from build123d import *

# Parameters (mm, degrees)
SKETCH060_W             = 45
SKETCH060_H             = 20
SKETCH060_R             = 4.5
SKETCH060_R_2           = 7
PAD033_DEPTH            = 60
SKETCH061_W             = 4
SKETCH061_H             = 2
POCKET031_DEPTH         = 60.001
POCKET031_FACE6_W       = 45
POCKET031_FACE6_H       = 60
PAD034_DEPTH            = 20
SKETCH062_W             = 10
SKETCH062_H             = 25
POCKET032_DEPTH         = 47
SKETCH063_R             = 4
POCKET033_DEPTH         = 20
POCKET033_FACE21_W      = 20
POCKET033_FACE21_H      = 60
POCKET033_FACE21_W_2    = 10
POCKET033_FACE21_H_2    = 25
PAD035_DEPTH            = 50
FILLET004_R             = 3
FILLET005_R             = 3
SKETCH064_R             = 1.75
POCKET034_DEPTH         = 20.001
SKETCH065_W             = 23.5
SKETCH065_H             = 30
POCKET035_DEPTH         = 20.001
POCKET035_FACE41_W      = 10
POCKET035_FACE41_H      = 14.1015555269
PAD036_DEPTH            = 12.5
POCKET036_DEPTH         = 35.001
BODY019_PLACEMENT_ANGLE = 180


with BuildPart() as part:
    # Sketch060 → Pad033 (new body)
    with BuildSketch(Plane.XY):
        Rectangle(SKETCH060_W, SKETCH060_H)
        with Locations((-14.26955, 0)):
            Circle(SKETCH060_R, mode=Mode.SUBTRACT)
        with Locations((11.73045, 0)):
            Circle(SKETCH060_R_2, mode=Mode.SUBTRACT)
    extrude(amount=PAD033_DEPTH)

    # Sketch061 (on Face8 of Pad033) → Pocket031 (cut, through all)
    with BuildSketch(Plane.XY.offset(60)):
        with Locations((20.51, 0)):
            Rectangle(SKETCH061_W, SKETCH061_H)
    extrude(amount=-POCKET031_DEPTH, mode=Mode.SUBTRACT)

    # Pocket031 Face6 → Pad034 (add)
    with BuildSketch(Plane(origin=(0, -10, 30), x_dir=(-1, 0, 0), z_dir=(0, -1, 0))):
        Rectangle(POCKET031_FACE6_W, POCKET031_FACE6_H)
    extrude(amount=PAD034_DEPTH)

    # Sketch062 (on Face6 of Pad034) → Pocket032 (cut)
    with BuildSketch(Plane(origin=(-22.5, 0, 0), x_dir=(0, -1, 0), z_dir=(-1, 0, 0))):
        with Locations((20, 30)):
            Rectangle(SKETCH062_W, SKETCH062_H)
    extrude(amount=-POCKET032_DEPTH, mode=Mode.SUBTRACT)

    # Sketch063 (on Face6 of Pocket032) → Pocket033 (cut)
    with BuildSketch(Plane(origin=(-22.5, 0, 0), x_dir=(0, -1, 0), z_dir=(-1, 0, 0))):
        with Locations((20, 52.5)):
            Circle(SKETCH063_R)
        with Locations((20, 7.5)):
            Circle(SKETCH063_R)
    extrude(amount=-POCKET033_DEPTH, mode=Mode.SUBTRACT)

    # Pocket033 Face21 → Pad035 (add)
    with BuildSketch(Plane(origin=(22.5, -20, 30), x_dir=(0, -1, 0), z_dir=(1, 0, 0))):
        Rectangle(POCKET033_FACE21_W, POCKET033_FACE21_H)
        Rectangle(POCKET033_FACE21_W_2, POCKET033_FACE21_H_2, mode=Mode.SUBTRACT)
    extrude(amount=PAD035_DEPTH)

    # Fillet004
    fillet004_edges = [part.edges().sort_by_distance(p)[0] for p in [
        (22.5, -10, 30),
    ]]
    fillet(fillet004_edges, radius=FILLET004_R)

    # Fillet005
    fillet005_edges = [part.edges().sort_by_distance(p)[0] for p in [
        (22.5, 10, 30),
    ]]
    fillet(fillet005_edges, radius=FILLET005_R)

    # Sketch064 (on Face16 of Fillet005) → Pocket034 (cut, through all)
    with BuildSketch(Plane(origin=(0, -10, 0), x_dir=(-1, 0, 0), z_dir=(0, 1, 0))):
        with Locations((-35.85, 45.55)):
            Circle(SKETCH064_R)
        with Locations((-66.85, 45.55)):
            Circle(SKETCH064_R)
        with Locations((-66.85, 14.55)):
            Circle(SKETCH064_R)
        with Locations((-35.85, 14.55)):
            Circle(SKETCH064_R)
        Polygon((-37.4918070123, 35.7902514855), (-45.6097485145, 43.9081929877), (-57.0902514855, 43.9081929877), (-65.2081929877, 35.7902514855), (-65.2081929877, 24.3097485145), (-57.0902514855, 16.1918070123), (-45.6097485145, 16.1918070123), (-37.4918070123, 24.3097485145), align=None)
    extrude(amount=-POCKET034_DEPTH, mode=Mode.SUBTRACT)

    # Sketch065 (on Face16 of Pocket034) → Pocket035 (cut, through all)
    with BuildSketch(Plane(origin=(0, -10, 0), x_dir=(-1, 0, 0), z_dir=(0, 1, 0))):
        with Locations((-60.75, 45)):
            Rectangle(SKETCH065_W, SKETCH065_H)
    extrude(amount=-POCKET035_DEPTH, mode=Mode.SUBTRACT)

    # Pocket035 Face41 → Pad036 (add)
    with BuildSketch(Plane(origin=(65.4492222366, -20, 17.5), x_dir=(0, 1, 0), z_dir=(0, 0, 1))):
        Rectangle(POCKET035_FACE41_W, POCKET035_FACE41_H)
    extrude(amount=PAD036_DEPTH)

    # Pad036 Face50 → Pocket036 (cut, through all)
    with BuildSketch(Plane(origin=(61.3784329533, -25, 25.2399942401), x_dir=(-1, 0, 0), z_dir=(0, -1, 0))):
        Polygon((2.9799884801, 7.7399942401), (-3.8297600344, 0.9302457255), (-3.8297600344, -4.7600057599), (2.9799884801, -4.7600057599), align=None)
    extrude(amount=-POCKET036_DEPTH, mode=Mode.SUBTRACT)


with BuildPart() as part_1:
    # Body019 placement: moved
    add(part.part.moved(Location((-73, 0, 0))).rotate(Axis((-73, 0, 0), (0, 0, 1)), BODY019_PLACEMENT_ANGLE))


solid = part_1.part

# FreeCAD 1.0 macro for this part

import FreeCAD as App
import Part
import Sketcher
Q = App.Units.Quantity


def edges_at(feature, points):
    """Names of the edges that pass closest to the given points."""
    edges = feature.Shape.Edges
    near = lambda p: min(range(len(edges)), key=lambda i: edges[i].distToShape(Part.Vertex(*p))[0])
    return sorted({f"Edge{near(p) + 1}" for p in points})

doc = App.newDocument("Part")
body = doc.addObject("PartDesign::Body", "Body")

sketch1 = body.newObject("Sketcher::SketchObject", "Sketch")
sketch1.AttachmentSupport = (doc.getObject("XY_Plane"), [""])
sketch1.MapMode = "FlatFace"
sketch1.addGeometry(Part.LineSegment(App.Vector(-22.5, 10, 0), App.Vector(-22.5, -10, 0)), False)
sketch1.addGeometry(Part.LineSegment(App.Vector(-22.5, -10, 0), App.Vector(22.5, -10, 0)), False)
sketch1.addGeometry(Part.LineSegment(App.Vector(22.5, -10, 0), App.Vector(22.5, 10, 0)), False)
sketch1.addGeometry(Part.LineSegment(App.Vector(22.5, 10, 0), App.Vector(-22.5, 10, 0)), False)
sketch1.addGeometry(Part.Circle(App.Vector(-14.3, 0, 0), App.Vector(0, 0, 1), 4.5), False)
sketch1.addGeometry(Part.Circle(App.Vector(11.7, 0, 0), App.Vector(0, 0, 1), 7), False)
sketch1.addConstraint(Sketcher.Constraint("Coincident", 0, 2, 1, 1))
sketch1.addConstraint(Sketcher.Constraint("Coincident", 1, 2, 2, 1))
sketch1.addConstraint(Sketcher.Constraint("Coincident", 2, 2, 3, 1))
sketch1.addConstraint(Sketcher.Constraint("Coincident", 3, 2, 0, 1))
sketch1.addConstraint(Sketcher.Constraint("Vertical", 0))
sketch1.addConstraint(Sketcher.Constraint("Horizontal", 1))
sketch1.addConstraint(Sketcher.Constraint("Vertical", 2))
sketch1.addConstraint(Sketcher.Constraint("Horizontal", 3))
sketch1.addConstraint(Sketcher.Constraint("Symmetric", 0, 2, 2, 2, -1, 1))
sketch1.addConstraint(Sketcher.Constraint("PointOnObject", 4, 3, -1))
sketch1.addConstraint(Sketcher.Constraint("PointOnObject", 5, 3, -1))
sketch1.addConstraint(Sketcher.Constraint("Diameter", 4, 9.0))
sketch1.addConstraint(Sketcher.Constraint("Diameter", 5, 14.0))
sketch1.addConstraint(Sketcher.Constraint("DistanceX", 1, 1, 1, 2, 45.0))
sketch1.addConstraint(Sketcher.Constraint("DistanceY", 0, 2, 0, 1, 20.0))
sketch1.addConstraint(Sketcher.Constraint("DistanceX", 4, 3, 5, 3, 26.0))
sketch1.addConstraint(Sketcher.Constraint("DistanceX", 4, 3, -1, 1, 14.26955))
pad1 = body.newObject("PartDesign::Pad", "Pad")
pad1.Profile = sketch1
pad1.Length = 60

sketch2 = body.newObject("Sketcher::SketchObject", "Sketch001")
sketch2.AttachmentSupport = (doc.getObject("XY_Plane"), [""])
sketch2.MapMode = "FlatFace"
sketch2.AttachmentOffset = App.Placement(App.Vector(0, 0, 60), App.Rotation())
sketch2.addGeometry(Part.LineSegment(App.Vector(18.5, 1, 0), App.Vector(18.5, -1, 0)), False)
sketch2.addGeometry(Part.LineSegment(App.Vector(18.5, -1, 0), App.Vector(22.5, -1, 0)), False)
sketch2.addGeometry(Part.LineSegment(App.Vector(22.5, -1, 0), App.Vector(22.5, 1, 0)), False)
sketch2.addGeometry(Part.LineSegment(App.Vector(22.5, 1, 0), App.Vector(18.5, 1, 0)), False)
sketch2.addConstraint(Sketcher.Constraint("Coincident", 0, 2, 1, 1))
sketch2.addConstraint(Sketcher.Constraint("Coincident", 1, 2, 2, 1))
sketch2.addConstraint(Sketcher.Constraint("Coincident", 2, 2, 3, 1))
sketch2.addConstraint(Sketcher.Constraint("Coincident", 3, 2, 0, 1))
sketch2.addConstraint(Sketcher.Constraint("Vertical", 0))
sketch2.addConstraint(Sketcher.Constraint("Horizontal", 1))
sketch2.addConstraint(Sketcher.Constraint("Vertical", 2))
sketch2.addConstraint(Sketcher.Constraint("Horizontal", 3))
sketch2.addConstraint(Sketcher.Constraint("DistanceX", 1, 1, 1, 2, 4.0))
sketch2.addConstraint(Sketcher.Constraint("DistanceY", 0, 2, 0, 1, 2.0))
sketch2.addConstraint(Sketcher.Constraint("DistanceY", 0, 2, -1, 1, 1.0))
sketch2.addConstraint(Sketcher.Constraint("DistanceX", -1, 1, 0, 2, 18.51))
pocket1 = body.newObject("PartDesign::Pocket", "Pocket")
pocket1.Profile = sketch2
pocket1.Type = "ThroughAll"

sketch3 = body.newObject("Sketcher::SketchObject", "Sketch002")
sketch3.AttachmentSupport = (doc.getObject("XZ_Plane"), [""])
sketch3.MapMode = "FlatFace"
sketch3.AttachmentOffset = App.Placement(App.Vector(0, 0, 10), App.Rotation())
sketch3.addGeometry(Part.LineSegment(App.Vector(22, 0, 0), App.Vector(22, 60, 0)), False)
sketch3.addGeometry(Part.LineSegment(App.Vector(22, 60, 0), App.Vector(-22, 60, 0)), False)
sketch3.addGeometry(Part.LineSegment(App.Vector(-22, 60, 0), App.Vector(-22, 0, 0)), False)
sketch3.addGeometry(Part.LineSegment(App.Vector(-22, 0, 0), App.Vector(22, 0, 0)), False)
sketch3.addConstraint(Sketcher.Constraint("Coincident", 0, 2, 1, 1))
sketch3.addConstraint(Sketcher.Constraint("Coincident", 1, 2, 2, 1))
sketch3.addConstraint(Sketcher.Constraint("Coincident", 2, 2, 3, 1))
sketch3.addConstraint(Sketcher.Constraint("Coincident", 3, 2, 0, 1))
sketch3.addConstraint(Sketcher.Constraint("Vertical", 0))
sketch3.addConstraint(Sketcher.Constraint("Horizontal", 1))
sketch3.addConstraint(Sketcher.Constraint("Vertical", 2))
sketch3.addConstraint(Sketcher.Constraint("Horizontal", 3))
sketch3.addConstraint(Sketcher.Constraint("Symmetric", 2, 2, 3, 2, -1, 1))
sketch3.addConstraint(Sketcher.Constraint("DistanceX", 1, 2, 1, 1, 45.0))
sketch3.addConstraint(Sketcher.Constraint("DistanceY", 0, 1, 0, 2, 60.0))
pad2 = body.newObject("PartDesign::Pad", "Pad001")
pad2.Profile = sketch3
pad2.Length = 20

sketch4 = body.newObject("Sketcher::SketchObject", "Sketch003")
sketch4.AttachmentSupport = (doc.getObject("YZ_Plane"), [""])
sketch4.MapMode = "FlatFace"
sketch4.AttachmentOffset = App.Placement(App.Vector(0, 0, -22.5), App.Rotation())
sketch4.addGeometry(Part.LineSegment(App.Vector(-15, 42, 0), App.Vector(-15, 18, 0)), False)
sketch4.addGeometry(Part.LineSegment(App.Vector(-15, 18, 0), App.Vector(-25, 18, 0)), False)
sketch4.addGeometry(Part.LineSegment(App.Vector(-25, 18, 0), App.Vector(-25, 42, 0)), False)
sketch4.addGeometry(Part.LineSegment(App.Vector(-25, 42, 0), App.Vector(-15, 42, 0)), False)
sketch4.addConstraint(Sketcher.Constraint("Coincident", 0, 2, 1, 1))
sketch4.addConstraint(Sketcher.Constraint("Coincident", 1, 2, 2, 1))
sketch4.addConstraint(Sketcher.Constraint("Coincident", 2, 2, 3, 1))
sketch4.addConstraint(Sketcher.Constraint("Coincident", 3, 2, 0, 1))
sketch4.addConstraint(Sketcher.Constraint("Vertical", 0))
sketch4.addConstraint(Sketcher.Constraint("Horizontal", 1))
sketch4.addConstraint(Sketcher.Constraint("Vertical", 2))
sketch4.addConstraint(Sketcher.Constraint("Horizontal", 3))
sketch4.addConstraint(Sketcher.Constraint("DistanceX", 1, 2, 1, 1, 10.0))
sketch4.addConstraint(Sketcher.Constraint("DistanceY", 0, 2, 0, 1, 25.0))
sketch4.addConstraint(Sketcher.Constraint("DistanceX", 0, 2, -1, 1, 15.0))
sketch4.addConstraint(Sketcher.Constraint("DistanceY", -1, 1, 0, 2, 17.5))
pocket2 = body.newObject("PartDesign::Pocket", "Pocket001")
pocket2.Profile = sketch4
pocket2.Length = 47
pocket2.Reversed = True

sketch5 = body.newObject("Sketcher::SketchObject", "Sketch004")
sketch5.AttachmentSupport = (doc.getObject("YZ_Plane"), [""])
sketch5.MapMode = "FlatFace"
sketch5.AttachmentOffset = App.Placement(App.Vector(0, 0, -22.5), App.Rotation())
sketch5.addGeometry(Part.Circle(App.Vector(-20, 52.5, 0), App.Vector(0, 0, 1), 4), False)
sketch5.addGeometry(Part.Circle(App.Vector(-20, 7.5, 0), App.Vector(0, 0, 1), 4), False)
sketch5.addConstraint(Sketcher.Constraint("Equal", 0, 1))
sketch5.addConstraint(Sketcher.Constraint("Vertical", 0, 3, 1, 3))
sketch5.addConstraint(Sketcher.Constraint("Diameter", 0, 8.0))
sketch5.addConstraint(Sketcher.Constraint("DistanceX", 0, 3, -1, 1, 20.0))
sketch5.addConstraint(Sketcher.Constraint("DistanceY", 1, 3, 0, 3, 45.0))
sketch5.addConstraint(Sketcher.Constraint("DistanceY", -1, 1, 0, 3, 52.5))
pocket3 = body.newObject("PartDesign::Pocket", "Pocket002")
pocket3.Profile = sketch5
pocket3.Length = 20
pocket3.Reversed = True

sketch6 = body.newObject("Sketcher::SketchObject", "Sketch005")
sketch6.AttachmentSupport = (doc.getObject("YZ_Plane"), [""])
sketch6.MapMode = "FlatFace"
sketch6.AttachmentOffset = App.Placement(App.Vector(0, 0, 22.5), App.Rotation())
sketch6.addGeometry(Part.LineSegment(App.Vector(-10, 0, 0), App.Vector(-10, 60, 0)), False)
sketch6.addGeometry(Part.LineSegment(App.Vector(-10, 60, 0), App.Vector(-30, 60, 0)), False)
sketch6.addGeometry(Part.LineSegment(App.Vector(-30, 60, 0), App.Vector(-30, 0, 0)), False)
sketch6.addGeometry(Part.LineSegment(App.Vector(-30, 0, 0), App.Vector(-10, 0, 0)), False)
sketch6.addGeometry(Part.LineSegment(App.Vector(-25, 42, 0), App.Vector(-15, 42, 0)), False)
sketch6.addGeometry(Part.LineSegment(App.Vector(-15, 42, 0), App.Vector(-15, 18, 0)), False)
sketch6.addGeometry(Part.LineSegment(App.Vector(-15, 18, 0), App.Vector(-25, 18, 0)), False)
sketch6.addGeometry(Part.LineSegment(App.Vector(-25, 18, 0), App.Vector(-25, 42, 0)), False)
sketch6.addConstraint(Sketcher.Constraint("Coincident", 0, 2, 1, 1))
sketch6.addConstraint(Sketcher.Constraint("Coincident", 1, 2, 2, 1))
sketch6.addConstraint(Sketcher.Constraint("Coincident", 2, 2, 3, 1))
sketch6.addConstraint(Sketcher.Constraint("Coincident", 3, 2, 0, 1))
sketch6.addConstraint(Sketcher.Constraint("Coincident", 4, 2, 5, 1))
sketch6.addConstraint(Sketcher.Constraint("Coincident", 5, 2, 6, 1))
sketch6.addConstraint(Sketcher.Constraint("Coincident", 6, 2, 7, 1))
sketch6.addConstraint(Sketcher.Constraint("Coincident", 7, 2, 4, 1))
sketch6.addConstraint(Sketcher.Constraint("Vertical", 0))
sketch6.addConstraint(Sketcher.Constraint("Horizontal", 1))
sketch6.addConstraint(Sketcher.Constraint("Vertical", 2))
sketch6.addConstraint(Sketcher.Constraint("Horizontal", 3))
sketch6.addConstraint(Sketcher.Constraint("Horizontal", 4))
sketch6.addConstraint(Sketcher.Constraint("Vertical", 5))
sketch6.addConstraint(Sketcher.Constraint("Horizontal", 6))
sketch6.addConstraint(Sketcher.Constraint("Vertical", 7))
sketch6.addConstraint(Sketcher.Constraint("PointOnObject", 2, 2, -1))
sketch6.addConstraint(Sketcher.Constraint("DistanceX", 1, 2, 1, 1, 20.0))
sketch6.addConstraint(Sketcher.Constraint("DistanceX", 4, 1, 4, 2, 10.0))
sketch6.addConstraint(Sketcher.Constraint("DistanceY", 0, 1, 0, 2, 60.0))
sketch6.addConstraint(Sketcher.Constraint("DistanceY", 5, 2, 5, 1, 25.0))
sketch6.addConstraint(Sketcher.Constraint("DistanceX", 0, 2, -1, 1, 10.0))
sketch6.addConstraint(Sketcher.Constraint("DistanceX", 4, 2, -1, 1, 15.0))
sketch6.addConstraint(Sketcher.Constraint("DistanceY", -1, 1, 4, 2, 42.5))
pad3 = body.newObject("PartDesign::Pad", "Pad002")
pad3.Profile = sketch6
pad3.Length = 50
doc.recompute()

fillet = body.newObject("PartDesign::Fillet", "Fillet")
fillet.Base = (pad3, edges_at(pad3, [(22.5, -10, 30)]))
fillet.Radius = 3
doc.recompute()

fillet2 = body.newObject("PartDesign::Fillet", "Fillet001")
fillet2.Base = (fillet, edges_at(fillet, [(22.5, 10, 30)]))
fillet2.Radius = 3

sketch7 = body.newObject("Sketcher::SketchObject", "Sketch006")
sketch7.AttachmentSupport = (doc.getObject("XZ_Plane"), [""])
sketch7.MapMode = "FlatFace"
sketch7.AttachmentOffset = App.Placement(App.Vector(0, 0, 10), App.Rotation())
sketch7.addGeometry(Part.Circle(App.Vector(35.9, 45.5, 0), App.Vector(0, 0, 1), 1.8), False)
sketch7.addGeometry(Part.Circle(App.Vector(66.8, 45.5, 0), App.Vector(0, 0, 1), 1.8), False)
sketch7.addGeometry(Part.Circle(App.Vector(66.8, 14.6, 0), App.Vector(0, 0, 1), 1.8), False)
sketch7.addGeometry(Part.Circle(App.Vector(35.9, 14.6, 0), App.Vector(0, 0, 1), 1.8), False)
sketch7.addGeometry(Part.LineSegment(App.Vector(37.5, 35.8, 0), App.Vector(45.6, 43.9, 0)), False)
sketch7.addGeometry(Part.LineSegment(App.Vector(45.6, 43.9, 0), App.Vector(57.1, 43.9, 0)), False)
sketch7.addGeometry(Part.LineSegment(App.Vector(57.1, 43.9, 0), App.Vector(65.2, 35.8, 0)), False)
sketch7.addGeometry(Part.LineSegment(App.Vector(65.2, 35.8, 0), App.Vector(65.2, 24.3, 0)), False)
sketch7.addGeometry(Part.LineSegment(App.Vector(65.2, 24.3, 0), App.Vector(57.1, 16.2, 0)), False)
sketch7.addGeometry(Part.LineSegment(App.Vector(57.1, 16.2, 0), App.Vector(45.6, 16.2, 0)), False)
sketch7.addGeometry(Part.LineSegment(App.Vector(45.6, 16.2, 0), App.Vector(37.5, 24.3, 0)), False)
sketch7.addGeometry(Part.LineSegment(App.Vector(37.5, 24.3, 0), App.Vector(37.5, 35.8, 0)), False)
sketch7.addConstraint(Sketcher.Constraint("Coincident", 4, 2, 5, 1))
sketch7.addConstraint(Sketcher.Constraint("Coincident", 5, 2, 6, 1))
sketch7.addConstraint(Sketcher.Constraint("Coincident", 6, 2, 7, 1))
sketch7.addConstraint(Sketcher.Constraint("Coincident", 7, 2, 8, 1))
sketch7.addConstraint(Sketcher.Constraint("Coincident", 8, 2, 9, 1))
sketch7.addConstraint(Sketcher.Constraint("Coincident", 9, 2, 10, 1))
sketch7.addConstraint(Sketcher.Constraint("Coincident", 10, 2, 11, 1))
sketch7.addConstraint(Sketcher.Constraint("Coincident", 11, 2, 4, 1))
sketch7.addConstraint(Sketcher.Constraint("Horizontal", 5))
sketch7.addConstraint(Sketcher.Constraint("Vertical", 7))
sketch7.addConstraint(Sketcher.Constraint("Horizontal", 9))
sketch7.addConstraint(Sketcher.Constraint("Vertical", 11))
sketch7.addConstraint(Sketcher.Constraint("Equal", 0, 1))
sketch7.addConstraint(Sketcher.Constraint("Equal", 1, 2))
sketch7.addConstraint(Sketcher.Constraint("Equal", 2, 3))
sketch7.addConstraint(Sketcher.Constraint("Perpendicular", 4, 6))
sketch7.addConstraint(Sketcher.Constraint("Perpendicular", 6, 8))
sketch7.addConstraint(Sketcher.Constraint("Perpendicular", 8, 10))
sketch7.addConstraint(Sketcher.Constraint("Horizontal", 0, 3, 1, 3))
sketch7.addConstraint(Sketcher.Constraint("Horizontal", 2, 3, 3, 3))
sketch7.addConstraint(Sketcher.Constraint("Horizontal", 7, 2, 10, 2))
sketch7.addConstraint(Sketcher.Constraint("Horizontal", 6, 2, 11, 2))
sketch7.addConstraint(Sketcher.Constraint("Vertical", 1, 3, 2, 3))
sketch7.addConstraint(Sketcher.Constraint("Vertical", 0, 3, 3, 3))
sketch7.addConstraint(Sketcher.Constraint("Vertical", 5, 2, 8, 2))
sketch7.addConstraint(Sketcher.Constraint("Vertical", 4, 2, 9, 2))
sketch7.addConstraint(Sketcher.Constraint("Equal", 9, 7))
sketch7.addConstraint(Sketcher.Constraint("Diameter", 0, 3.5))
sketch7.addConstraint(Sketcher.Constraint("DistanceX", 0, 3, 1, 3, 31.0))
sketch7.addConstraint(Sketcher.Constraint("DistanceY", 2, 3, 1, 3, 31.0))
sketch7.addConstraint(Sketcher.Constraint("DistanceX", -1, 1, 0, 3, 35.85))
sketch7.addConstraint(Sketcher.Constraint("DistanceY", -1, 1, 0, 3, 45.55))
sketch7.addConstraint(Sketcher.Constraint("DistanceX", 5, 1, 5, 2, 11.480503))
sketch7.addConstraint(Sketcher.Constraint("DistanceX", -1, 1, 4, 2, 45.609749))
sketch7.addConstraint(Sketcher.Constraint("DistanceY", -1, 1, 6, 2, 35.790251))
sketch7.addConstraint(Sketcher.Constraint("DistanceX", 5, 2, 6, 2, 8.117942))
pocket4 = body.newObject("PartDesign::Pocket", "Pocket003")
pocket4.Profile = sketch7
pocket4.Type = "ThroughAll"
pocket4.Reversed = True

sketch8 = body.newObject("Sketcher::SketchObject", "Sketch007")
sketch8.AttachmentSupport = (doc.getObject("XZ_Plane"), [""])
sketch8.MapMode = "FlatFace"
sketch8.AttachmentOffset = App.Placement(App.Vector(0, 0, 10), App.Rotation())
sketch8.addGeometry(Part.LineSegment(App.Vector(72, 60, 0), App.Vector(72, 30, 0)), False)
sketch8.addGeometry(Part.LineSegment(App.Vector(72, 30, 0), App.Vector(49, 30, 0)), False)
sketch8.addGeometry(Part.LineSegment(App.Vector(49, 30, 0), App.Vector(49, 60, 0)), False)
sketch8.addGeometry(Part.LineSegment(App.Vector(49, 60, 0), App.Vector(72, 60, 0)), False)
sketch8.addConstraint(Sketcher.Constraint("Coincident", 0, 2, 1, 1))
sketch8.addConstraint(Sketcher.Constraint("Coincident", 1, 2, 2, 1))
sketch8.addConstraint(Sketcher.Constraint("Coincident", 2, 2, 3, 1))
sketch8.addConstraint(Sketcher.Constraint("Coincident", 3, 2, 0, 1))
sketch8.addConstraint(Sketcher.Constraint("Vertical", 0))
sketch8.addConstraint(Sketcher.Constraint("Horizontal", 1))
sketch8.addConstraint(Sketcher.Constraint("Vertical", 2))
sketch8.addConstraint(Sketcher.Constraint("Horizontal", 3))
sketch8.addConstraint(Sketcher.Constraint("DistanceY", 0, 2, 0, 1, 30.0))
sketch8.addConstraint(Sketcher.Constraint("DistanceX", 1, 2, 1, 1, 23.5))
sketch8.addConstraint(Sketcher.Constraint("DistanceY", -1, 1, 0, 2, 30.0))
sketch8.addConstraint(Sketcher.Constraint("DistanceX", -1, 1, 1, 2, 49.0))
pocket5 = body.newObject("PartDesign::Pocket", "Pocket004")
pocket5.Profile = sketch8
pocket5.Type = "ThroughAll"
pocket5.Reversed = True

sketch9 = body.newObject("Sketcher::SketchObject", "Sketch008")
sketch9.AttachmentSupport = (doc.getObject("XY_Plane"), [""])
sketch9.MapMode = "FlatFace"
sketch9.AttachmentOffset = App.Placement(App.Vector(0, 0, 17.5), App.Rotation())
sketch9.addGeometry(Part.LineSegment(App.Vector(58, -25, 0), App.Vector(72, -25, 0)), False)
sketch9.addGeometry(Part.LineSegment(App.Vector(72, -25, 0), App.Vector(72, -15, 0)), False)
sketch9.addGeometry(Part.LineSegment(App.Vector(72, -15, 0), App.Vector(58, -15, 0)), False)
sketch9.addGeometry(Part.LineSegment(App.Vector(58, -15, 0), App.Vector(58, -25, 0)), False)
sketch9.addConstraint(Sketcher.Constraint("Coincident", 0, 2, 1, 1))
sketch9.addConstraint(Sketcher.Constraint("Coincident", 1, 2, 2, 1))
sketch9.addConstraint(Sketcher.Constraint("Coincident", 2, 2, 3, 1))
sketch9.addConstraint(Sketcher.Constraint("Coincident", 3, 2, 0, 1))
sketch9.addConstraint(Sketcher.Constraint("Horizontal", 0))
sketch9.addConstraint(Sketcher.Constraint("Vertical", 1))
sketch9.addConstraint(Sketcher.Constraint("Horizontal", 2))
sketch9.addConstraint(Sketcher.Constraint("Vertical", 3))
sketch9.addConstraint(Sketcher.Constraint("DistanceY", 1, 1, 1, 2, 10.0))
sketch9.addConstraint(Sketcher.Constraint("DistanceY", 0, 2, -1, 1, 25.0))
sketch9.addConstraint(Sketcher.Constraint("DistanceX", -1, 1, 0, 2, 72.5))
sketch9.addConstraint(Sketcher.Constraint("DistanceX", 0, 1, 0, 2, 14.101556))
pad4 = body.newObject("PartDesign::Pad", "Pad003")
pad4.Profile = sketch9
pad4.Length = 12.5

sketch10 = body.newObject("Sketcher::SketchObject", "Sketch009")
sketch10.AttachmentSupport = (doc.getObject("XZ_Plane"), [""])
sketch10.MapMode = "FlatFace"
sketch10.AttachmentOffset = App.Placement(App.Vector(0, 0, 25), App.Rotation())
sketch10.addGeometry(Part.LineSegment(App.Vector(58, 18, 0), App.Vector(65, 24, 0)), False)
sketch10.addGeometry(Part.LineSegment(App.Vector(65, 24, 0), App.Vector(65, 30, 0)), False)
sketch10.addGeometry(Part.LineSegment(App.Vector(65, 30, 0), App.Vector(58, 30, 0)), False)
sketch10.addGeometry(Part.LineSegment(App.Vector(58, 30, 0), App.Vector(58, 18, 0)), False)
sketch10.addConstraint(Sketcher.Constraint("Coincident", 0, 2, 1, 1))
sketch10.addConstraint(Sketcher.Constraint("Coincident", 1, 2, 2, 1))
sketch10.addConstraint(Sketcher.Constraint("Coincident", 2, 2, 3, 1))
sketch10.addConstraint(Sketcher.Constraint("Coincident", 3, 2, 0, 1))
sketch10.addConstraint(Sketcher.Constraint("Vertical", 1))
sketch10.addConstraint(Sketcher.Constraint("Horizontal", 2))
sketch10.addConstraint(Sketcher.Constraint("Vertical", 3))
sketch10.addConstraint(Sketcher.Constraint("Angle", 0, Q("45 deg")))
sketch10.addConstraint(Sketcher.Constraint("DistanceY", 3, 2, 3, 1, 12.5))
sketch10.addConstraint(Sketcher.Constraint("DistanceY", -1, 1, 1, 2, 30.0))
sketch10.addConstraint(Sketcher.Constraint("DistanceX", 2, 2, 2, 1, 6.809749))
sketch10.addConstraint(Sketcher.Constraint("DistanceX", -1, 1, 0, 2, 65.208193))
pocket6 = body.newObject("PartDesign::Pocket", "Pocket005")
pocket6.Profile = sketch10
pocket6.Type = "ThroughAll"
body2 = doc.addObject("PartDesign::Body", "Body001")
doc.recompute()

body.Placement = App.Placement(App.Vector(-73, 0, 0), App.Rotation(App.Vector(0, 0, 1), 180))
boolean = body2.newObject("PartDesign::Boolean", "Boolean")
boolean.Type = "Fuse"
boolean.addObjects([body])

doc.recompute()
